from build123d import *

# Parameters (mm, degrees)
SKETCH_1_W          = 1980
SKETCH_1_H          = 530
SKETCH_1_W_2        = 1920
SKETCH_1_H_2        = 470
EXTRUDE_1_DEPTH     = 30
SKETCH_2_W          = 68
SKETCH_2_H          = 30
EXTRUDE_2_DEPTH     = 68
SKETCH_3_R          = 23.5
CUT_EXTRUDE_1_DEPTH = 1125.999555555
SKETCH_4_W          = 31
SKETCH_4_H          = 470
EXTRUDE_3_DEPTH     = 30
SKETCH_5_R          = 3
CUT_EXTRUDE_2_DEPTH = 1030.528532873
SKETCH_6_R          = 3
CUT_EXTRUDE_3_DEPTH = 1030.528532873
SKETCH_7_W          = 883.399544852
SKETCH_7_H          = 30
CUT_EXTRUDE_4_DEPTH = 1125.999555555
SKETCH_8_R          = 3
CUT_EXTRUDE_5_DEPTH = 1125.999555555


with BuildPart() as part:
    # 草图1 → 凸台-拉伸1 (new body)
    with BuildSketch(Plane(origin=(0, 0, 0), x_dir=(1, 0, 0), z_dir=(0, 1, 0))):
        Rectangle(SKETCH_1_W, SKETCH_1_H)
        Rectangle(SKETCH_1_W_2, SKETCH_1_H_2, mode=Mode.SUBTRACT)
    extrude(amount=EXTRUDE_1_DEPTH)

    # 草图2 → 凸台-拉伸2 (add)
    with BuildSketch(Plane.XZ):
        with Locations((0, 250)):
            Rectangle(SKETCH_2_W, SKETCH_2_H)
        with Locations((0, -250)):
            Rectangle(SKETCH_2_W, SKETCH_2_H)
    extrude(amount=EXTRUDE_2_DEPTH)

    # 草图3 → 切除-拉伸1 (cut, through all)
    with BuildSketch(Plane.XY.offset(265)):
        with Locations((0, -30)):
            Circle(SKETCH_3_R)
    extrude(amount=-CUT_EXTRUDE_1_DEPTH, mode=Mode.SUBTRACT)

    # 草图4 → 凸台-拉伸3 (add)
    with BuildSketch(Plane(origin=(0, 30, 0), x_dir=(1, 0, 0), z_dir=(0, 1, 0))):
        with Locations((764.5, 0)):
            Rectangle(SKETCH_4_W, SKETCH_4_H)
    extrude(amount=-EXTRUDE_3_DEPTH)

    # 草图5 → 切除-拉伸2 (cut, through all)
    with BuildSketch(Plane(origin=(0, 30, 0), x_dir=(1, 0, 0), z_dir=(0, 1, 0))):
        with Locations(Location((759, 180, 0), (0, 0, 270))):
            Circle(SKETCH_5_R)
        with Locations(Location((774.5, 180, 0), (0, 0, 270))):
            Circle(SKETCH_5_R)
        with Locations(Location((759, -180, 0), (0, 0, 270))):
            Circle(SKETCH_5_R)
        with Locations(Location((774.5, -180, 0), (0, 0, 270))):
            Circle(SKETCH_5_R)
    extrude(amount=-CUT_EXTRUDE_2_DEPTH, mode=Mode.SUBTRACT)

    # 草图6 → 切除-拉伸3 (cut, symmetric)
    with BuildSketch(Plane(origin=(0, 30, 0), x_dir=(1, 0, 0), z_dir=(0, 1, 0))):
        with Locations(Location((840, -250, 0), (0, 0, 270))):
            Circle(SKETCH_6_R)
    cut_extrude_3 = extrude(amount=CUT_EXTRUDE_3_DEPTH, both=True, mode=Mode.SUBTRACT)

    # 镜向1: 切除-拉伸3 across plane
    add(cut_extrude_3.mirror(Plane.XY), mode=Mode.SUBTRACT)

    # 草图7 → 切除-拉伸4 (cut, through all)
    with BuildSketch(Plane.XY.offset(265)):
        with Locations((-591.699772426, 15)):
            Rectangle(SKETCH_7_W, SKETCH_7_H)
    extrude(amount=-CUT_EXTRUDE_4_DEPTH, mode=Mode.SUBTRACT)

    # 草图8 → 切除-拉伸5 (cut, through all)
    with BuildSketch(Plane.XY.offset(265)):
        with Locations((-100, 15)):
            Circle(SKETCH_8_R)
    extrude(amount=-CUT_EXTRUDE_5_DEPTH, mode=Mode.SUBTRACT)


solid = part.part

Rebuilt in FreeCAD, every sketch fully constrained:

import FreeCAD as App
import Part
import Sketcher

doc = App.newDocument("Part")
params = doc.addObject("Spreadsheet::Sheet", "Params")
for row, (alias, value) in enumerate([
    ("sketch1_width", "1980 mm"),
    ("sketch1_width2", "1920 mm"),
    ("sketch1_height", "530 mm"),
    ("sketch1_height2", "470 mm"),
    ("pad1_length", "30 mm"),
    ("sketch2_width", "68 mm"),
    ("sketch2_height", "30 mm"),
    ("pad2_length", "68 mm"),
    ("sketch3_diameter", "47 mm"),
    ("sketch4_width", "31 mm"),
    ("sketch4_height", "470 mm"),
    ("pad3_length", "30 mm"),
    ("sketch5_diameter", "6 mm"),
    ("sketch6_diameter", "6 mm"),
    ("pocket3_length", "2061.057066 mm"),
    ("sketch7_height", "30 mm"),
    ("sketch8_diameter", "6 mm"),
], start=1):
    params.set(f"A{row}", alias)
    params.set(f"B{row}", "=" + value)
    params.setAlias(f"B{row}", alias)

body = doc.addObject("PartDesign::Body", "Body")

# Sketch on XZ plane
sketch1 = body.newObject("Sketcher::SketchObject", "Sketch")
sketch1.AttachmentSupport = (doc.getObject("XZ_Plane"), [""])
sketch1.MapMode = "FlatFace"
sketch1.addGeometry([
    Part.LineSegment(App.Vector(-990, -265, 0), App.Vector(-990, 265, 0)),  # 0
    Part.LineSegment(App.Vector(-990, 265, 0), App.Vector(990, 265, 0)),  # 1
    Part.LineSegment(App.Vector(990, 265, 0), App.Vector(990, -265, 0)),  # 2
    Part.LineSegment(App.Vector(990, -265, 0), App.Vector(-990, -265, 0)),  # 3
    Part.LineSegment(App.Vector(960, 235, 0), App.Vector(-960, 235, 0)),  # 4
    Part.LineSegment(App.Vector(-960, 235, 0), App.Vector(-960, -235, 0)),  # 5
    Part.LineSegment(App.Vector(-960, -235, 0), App.Vector(960, -235, 0)),  # 6
    Part.LineSegment(App.Vector(960, -235, 0), App.Vector(960, 235, 0)),  # 7
], False)
sketch1.addConstraint([
    Sketcher.Constraint("Coincident", 0, 2, 1, 1),
    Sketcher.Constraint("Coincident", 1, 2, 2, 1),
    Sketcher.Constraint("Coincident", 2, 2, 3, 1),
    Sketcher.Constraint("Coincident", 3, 2, 0, 1),
    Sketcher.Constraint("Coincident", 4, 2, 5, 1),
    Sketcher.Constraint("Coincident", 5, 2, 6, 1),
    Sketcher.Constraint("Coincident", 6, 2, 7, 1),
    Sketcher.Constraint("Coincident", 7, 2, 4, 1),
    Sketcher.Constraint("Vertical", 0),
    Sketcher.Constraint("Horizontal", 1),
    Sketcher.Constraint("Vertical", 2),
    Sketcher.Constraint("Horizontal", 3),
    Sketcher.Constraint("Horizontal", 4),
    Sketcher.Constraint("Vertical", 5),
    Sketcher.Constraint("Horizontal", 6),
    Sketcher.Constraint("Vertical", 7),
    Sketcher.Constraint("Symmetric", 0, 2, 2, 2, -1, 1),
    Sketcher.Constraint("Symmetric", 4, 2, 6, 2, -1, 1),
    Sketcher.Constraint("DistanceX", 1, 1, 1, 2, 1980.0),
    Sketcher.Constraint("DistanceX", 4, 2, 4, 1, 1920.0),
    Sketcher.Constraint("DistanceY", 0, 1, 0, 2, 530.0),
    Sketcher.Constraint("DistanceY", 5, 2, 5, 1, 470.0),
])
sketch1.setExpression("Constraints[18]", "Params.sketch1_width")
sketch1.setExpression("Constraints[19]", "Params.sketch1_width2")
sketch1.setExpression("Constraints[20]", "Params.sketch1_height")
sketch1.setExpression("Constraints[21]", "Params.sketch1_height2")
pad1 = body.newObject("PartDesign::Pad", "Pad")
pad1.Profile = sketch1
pad1.setExpression("Length", "Params.pad1_length")
pad1.Reversed = True

# Sketch on XZ plane
sketch2 = body.newObject("Sketcher::SketchObject", "Sketch001")
sketch2.AttachmentSupport = (doc.getObject("XZ_Plane"), [""])
sketch2.MapMode = "FlatFace"
sketch2.addGeometry([
    Part.LineSegment(App.Vector(-34, 265, 0), App.Vector(-34, 235, 0)),  # 0
    Part.LineSegment(App.Vector(-34, 235, 0), App.Vector(34, 235, 0)),  # 1
    Part.LineSegment(App.Vector(34, 235, 0), App.Vector(34, 265, 0)),  # 2
    Part.LineSegment(App.Vector(34, 265, 0), App.Vector(-34, 265, 0)),  # 3
    Part.LineSegment(App.Vector(-34, -235, 0), App.Vector(-34, -265, 0)),  # 4
    Part.LineSegment(App.Vector(-34, -265, 0), App.Vector(34, -265, 0)),  # 5
    Part.LineSegment(App.Vector(34, -265, 0), App.Vector(34, -235, 0)),  # 6
    Part.LineSegment(App.Vector(34, -235, 0), App.Vector(-34, -235, 0)),  # 7
], False)
sketch2.addConstraint([
    Sketcher.Constraint("Coincident", 0, 2, 1, 1),
    Sketcher.Constraint("Coincident", 1, 2, 2, 1),
    Sketcher.Constraint("Coincident", 2, 2, 3, 1),
    Sketcher.Constraint("Coincident", 3, 2, 0, 1),
    Sketcher.Constraint("Coincident", 4, 2, 5, 1),
    Sketcher.Constraint("Coincident", 5, 2, 6, 1),
    Sketcher.Constraint("Coincident", 6, 2, 7, 1),
    Sketcher.Constraint("Coincident", 7, 2, 4, 1),
    Sketcher.Constraint("Vertical", 0),
    Sketcher.Constraint("Horizontal", 1),
    Sketcher.Constraint("Vertical", 2),
    Sketcher.Constraint("Horizontal", 3),
    Sketcher.Constraint("Vertical", 4),
    Sketcher.Constraint("Horizontal", 5),
    Sketcher.Constraint("Vertical", 6),
    Sketcher.Constraint("Horizontal", 7),
    Sketcher.Constraint("Symmetric", 2, 2, 4, 2, -1, 1),
    Sketcher.Constraint("Symmetric", 0, 2, 6, 2, -1, 1),
    Sketcher.Constraint("Vertical", 3, 2, 4, 2),
    Sketcher.Constraint("DistanceX", 1, 1, 1, 2, 68.0),
    Sketcher.Constraint("DistanceY", 0, 2, 0, 1, 30.0),
    Sketcher.Constraint("DistanceY", -1, 1, 0, 2, 235.0),
])
sketch2.setExpression("Constraints[19]", "Params.sketch2_width")
sketch2.setExpression("Constraints[20]", "Params.sketch2_height")
pad2 = body.newObject("PartDesign::Pad", "Pad001")
pad2.Profile = sketch2
pad2.setExpression("Length", "Params.pad2_length")

# Sketch on XY plane
sketch3 = body.newObject("Sketcher::SketchObject", "Sketch002")
sketch3.AttachmentSupport = (doc.getObject("XY_Plane"), [""])
sketch3.MapMode = "FlatFace"
sketch3.AttachmentOffset = App.Placement(App.Vector(0, 0, 265), App.Rotation())
sketch3.addGeometry(Part.Circle(App.Vector(0, -30, 0), App.Vector(0, 0, 1), 24), False)
sketch3.addConstraint([
    Sketcher.Constraint("PointOnObject", 0, 3, -2),
    Sketcher.Constraint("Diameter", 0, 47.0),
    Sketcher.Constraint("DistanceY", 0, 3, -1, 1, 30.0),
])
sketch3.setExpression("Constraints[1]", "Params.sketch3_diameter")
pocket1 = body.newObject("PartDesign::Pocket", "Pocket")
pocket1.Profile = sketch3
pocket1.Type = "ThroughAll"

# Sketch on XZ plane
sketch4 = body.newObject("Sketcher::SketchObject", "Sketch003")
sketch4.AttachmentSupport = (doc.getObject("XZ_Plane"), [""])
sketch4.MapMode = "FlatFace"
sketch4.AttachmentOffset = App.Placement(App.Vector(0, 0, -30), App.Rotation())
sketch4.addGeometry([
    Part.LineSegment(App.Vector(749, -235, 0), App.Vector(749, 235, 0)),
    Part.LineSegment(App.Vector(749, 235, 0), App.Vector(780, 235, 0)),
    Part.LineSegment(App.Vector(780, 235, 0), App.Vector(780, -235, 0)),
    Part.LineSegment(App.Vector(780, -235, 0), App.Vector(749, -235, 0)),
], False)
sketch4.addConstraint([
    Sketcher.Constraint("Coincident", 0, 2, 1, 1),
    Sketcher.Constraint("Coincident", 1, 2, 2, 1),
    Sketcher.Constraint("Coincident", 2, 2, 3, 1),
    Sketcher.Constraint("Coincident", 3, 2, 0, 1),
    Sketcher.Constraint("Vertical", 0),
    Sketcher.Constraint("Horizontal", 1),
    Sketcher.Constraint("Vertical", 2),
    Sketcher.Constraint("Horizontal", 3),
    Sketcher.Constraint("DistanceX", 1, 1, 1, 2, 31.0),
    Sketcher.Constraint("DistanceY", 0, 1, 0, 2, 470.0),
    Sketcher.Constraint("DistanceX", -1, 1, 0, 2, 749.0),
    Sketcher.Constraint("DistanceY", -1, 1, 0, 2, 235.0),
])
sketch4.setExpression("Constraints[8]", "Params.sketch4_width")
sketch4.setExpression("Constraints[9]", "Params.sketch4_height")
pad3 = body.newObject("PartDesign::Pad", "Pad002")
pad3.Profile = sketch4
pad3.setExpression("Length", "Params.pad3_length")

# Sketch on XZ plane
sketch5 = body.newObject("Sketcher::SketchObject", "Sketch004")
sketch5.AttachmentSupport = (doc.getObject("XZ_Plane"), [""])
sketch5.MapMode = "FlatFace"
sketch5.AttachmentOffset = App.Placement(App.Vector(0, 0, -30), App.Rotation())
sketch5.addGeometry([
    Part.Circle(App.Vector(759, -180, 0), App.Vector(0, 0, 1), 3),
    Part.Circle(App.Vector(774.5, -180, 0), App.Vector(0, 0, 1), 3),
    Part.Circle(App.Vector(759, 180, 0), App.Vector(0, 0, 1), 3),
    Part.Circle(App.Vector(774.5, 180, 0), App.Vector(0, 0, 1), 3),
], False)
sketch5.addConstraint([
    Sketcher.Constraint("Equal", 0, 1),
    Sketcher.Constraint("Equal", 1, 2),
    Sketcher.Constraint("Equal", 2, 3),
    Sketcher.Constraint("Symmetric", 0, 3, 2, 3, -1),
    Sketcher.Constraint("Symmetric", 1, 3, 3, 3, -1),
    Sketcher.Constraint("Horizontal", 0, 3, 1, 3),
    Sketcher.Constraint("Diameter", 0, 6.0),
    Sketcher.Constraint("DistanceX", -1, 1, 0, 3, 759.0),
    Sketcher.Constraint("DistanceY", 0, 3, -1, 1, 180.0),
    Sketcher.Constraint("DistanceX", -1, 1, 1, 3, 774.5),
])
sketch5.setExpression("Constraints[6]", "Params.sketch5_diameter")
pocket2 = body.newObject("PartDesign::Pocket", "Pocket001")
pocket2.Profile = sketch5
pocket2.Type = "ThroughAll"
pocket2.Reversed = True

# Sketch on XZ plane
sketch6 = body.newObject("Sketcher::SketchObject", "Sketch005")
sketch6.AttachmentSupport = (doc.getObject("XZ_Plane"), [""])
sketch6.MapMode = "FlatFace"
sketch6.AttachmentOffset = App.Placement(App.Vector(0, 0, -30), App.Rotation())
sketch6.addGeometry(Part.Circle(App.Vector(840, 250, 0), App.Vector(0, 0, 1), 3), False)
sketch6.addConstraint([
    Sketcher.Constraint("Diameter", 0, 6.0),
    Sketcher.Constraint("DistanceX", -1, 1, 0, 3, 840.0),
    Sketcher.Constraint("DistanceY", -1, 1, 0, 3, 250.0),
])
sketch6.setExpression("Constraints[0]", "Params.sketch6_diameter")
pocket3 = body.newObject("PartDesign::Pocket", "Pocket002")
pocket3.Profile = sketch6
pocket3.setExpression("Length", "Params.pocket3_length")
pocket3.Midplane = True
doc.recompute()

mirrored = body.newObject("PartDesign::Mirrored", "Mirrored")
mirrored.Originals = [pocket3]
mirrored.MirrorPlane = (doc.getObject("XY_Plane"), [""])
body.Tip = mirrored

# Sketch on XY plane
sketch7 = body.newObject("Sketcher::SketchObject", "Sketch006")
sketch7.AttachmentSupport = (doc.getObject("XY_Plane"), [""])
sketch7.MapMode = "FlatFace"
sketch7.AttachmentOffset = App.Placement(App.Vector(0, 0, 265), App.Rotation())
sketch7.addGeometry([
    Part.LineSegment(App.Vector(-1033, 30, 0), App.Vector(-1033, 0, 0)),
    Part.LineSegment(App.Vector(-1033, 0, 0), App.Vector(-150, 0, 0)),
    Part.LineSegment(App.Vector(-150, 0, 0), App.Vector(-150, 30, 0)),
    Part.LineSegment(App.Vector(-150, 30, 0), App.Vector(-1033, 30, 0)),
], False)
sketch7.addConstraint([
    Sketcher.Constraint("Coincident", 0, 2, 1, 1),
    Sketcher.Constraint("Coincident", 1, 2, 2, 1),
    Sketcher.Constraint("Coincident", 2, 2, 3, 1),
    Sketcher.Constraint("Coincident", 3, 2, 0, 1),
    Sketcher.Constraint("Vertical", 0),
    Sketcher.Constraint("Horizontal", 1),
    Sketcher.Constraint("Vertical", 2),
    Sketcher.Constraint("Horizontal", 3),
    Sketcher.Constraint("PointOnObject", 0, 2, -1),
    Sketcher.Constraint("DistanceY", 0, 2, 0, 1, 30.0),
    Sketcher.Constraint("DistanceX", 1, 2, -1, 1, 150.0),
    Sketcher.Constraint("DistanceX", 1, 1, 1, 2, 883.399545),
])
sketch7.setExpression("Constraints[9]", "Params.sketch7_height")
pocket4 = body.newObject("PartDesign::Pocket", "Pocket003")
pocket4.Profile = sketch7
pocket4.Type = "ThroughAll"

# Sketch on XY plane
sketch8 = body.newObject("Sketcher::SketchObject", "Sketch007")
sketch8.AttachmentSupport = (doc.getObject("XY_Plane"), [""])
sketch8.MapMode = "FlatFace"
sketch8.AttachmentOffset = App.Placement(App.Vector(0, 0, 265), App.Rotation())
sketch8.addGeometry(Part.Circle(App.Vector(-100, 15, 0), App.Vector(0, 0, 1), 3), False)
sketch8.addConstraint([
    Sketcher.Constraint("Diameter", 0, 6.0),
    Sketcher.Constraint("DistanceX", 0, 3, -1, 1, 100.0),
    Sketcher.Constraint("DistanceY", -1, 1, 0, 3, 15.0),
])
sketch8.setExpression("Constraints[0]", "Params.sketch8_diameter")
pocket5 = body.newObject("PartDesign::Pocket", "Pocket004")
pocket5.Profile = sketch8
pocket5.Type = "ThroughAll"

doc.recompute()
